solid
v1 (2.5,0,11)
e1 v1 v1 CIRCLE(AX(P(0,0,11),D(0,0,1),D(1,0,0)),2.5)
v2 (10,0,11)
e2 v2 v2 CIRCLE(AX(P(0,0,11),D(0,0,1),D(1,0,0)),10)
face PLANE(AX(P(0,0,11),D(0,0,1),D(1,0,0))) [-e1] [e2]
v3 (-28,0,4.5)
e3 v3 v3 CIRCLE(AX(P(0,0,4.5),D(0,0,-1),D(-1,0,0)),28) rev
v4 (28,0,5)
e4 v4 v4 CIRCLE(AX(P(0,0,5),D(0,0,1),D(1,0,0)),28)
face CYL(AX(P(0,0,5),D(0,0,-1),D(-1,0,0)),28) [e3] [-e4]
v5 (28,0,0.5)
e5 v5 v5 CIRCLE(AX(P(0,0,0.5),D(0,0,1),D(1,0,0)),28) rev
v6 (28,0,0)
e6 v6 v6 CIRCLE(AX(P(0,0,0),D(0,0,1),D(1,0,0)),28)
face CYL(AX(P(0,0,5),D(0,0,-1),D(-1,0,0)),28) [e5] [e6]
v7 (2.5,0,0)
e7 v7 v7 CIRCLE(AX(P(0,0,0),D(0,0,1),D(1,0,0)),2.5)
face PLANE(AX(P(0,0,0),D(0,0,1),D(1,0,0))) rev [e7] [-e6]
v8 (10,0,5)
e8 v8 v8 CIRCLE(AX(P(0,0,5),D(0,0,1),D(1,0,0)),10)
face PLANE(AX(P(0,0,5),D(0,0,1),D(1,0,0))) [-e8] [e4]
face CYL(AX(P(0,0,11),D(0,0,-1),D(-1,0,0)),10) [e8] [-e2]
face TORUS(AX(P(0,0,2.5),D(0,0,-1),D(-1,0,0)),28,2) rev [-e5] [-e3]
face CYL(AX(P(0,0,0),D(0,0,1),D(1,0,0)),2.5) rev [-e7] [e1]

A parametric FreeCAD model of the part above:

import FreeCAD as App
import Part
import Sketcher

V = App.Vector
Q = App.Units.Quantity

doc = App.newDocument("Part")
body = doc.addObject("PartDesign::Body", "Body")

sketch1 = body.newObject("Sketcher::SketchObject", "Sketch")
sketch1.AttachmentSupport = (doc.getObject("XY_Plane"), [""])
sketch1.MapMode = "FlatFace"
sketch1.addGeometry(Part.Circle(V(0, 0, 0), V(0, 0, 1), 28), False)
sketch1.addConstraint(Sketcher.Constraint("Coincident", 0, 3, -1, 1))
sketch1.addConstraint(Sketcher.Constraint("Diameter", 0, Q("56 mm")))
pad1 = body.newObject("PartDesign::Pad", "Pad")
pad1.Profile = sketch1
pad1.Length = 5

sketch2 = body.newObject("Sketcher::SketchObject", "Sketch001")
sketch2.AttachmentSupport = (doc.getObject("XY_Plane"), [""])
sketch2.MapMode = "FlatFace"
sketch2.AttachmentOffset = App.Placement(V(0, 0, 5), App.Rotation())
sketch2.addGeometry(Part.Circle(V(0, 0, 0), V(0, 0, 1), 10), False)
sketch2.addConstraint(Sketcher.Constraint("Coincident", 0, 3, -1, 1))
sketch2.addConstraint(Sketcher.Constraint("Diameter", 0, Q("20 mm")))
pad2 = body.newObject("PartDesign::Pad", "Pad001")
pad2.Profile = sketch2
pad2.Length = 6

sketch3 = body.newObject("Sketcher::SketchObject", "Sketch002")
sketch3.AttachmentSupport = (doc.getObject("XY_Plane"), [""])
sketch3.MapMode = "FlatFace"
sketch3.AttachmentOffset = App.Placement(V(0, 0, 11), App.Rotation())
sketch3.addGeometry(Part.Circle(V(0, 0, 0), V(0, 0, 1), 2.5), False)
sketch3.addConstraint(Sketcher.Constraint("Coincident", 0, 3, -1, 1))
sketch3.addConstraint(Sketcher.Constraint("Diameter", 0, Q("5 mm")))
pocket1 = body.newObject("PartDesign::Pocket", "Pocket")
pocket1.Profile = sketch3
pocket1.Type = "ThroughAll"

sketch4 = body.newObject("Sketcher::SketchObject", "Sketch003")
sketch4.AttachmentSupport = (doc.getObject("YZ_Plane"), [""])
sketch4.MapMode = "FlatFace"
sketch4.addGeometry(Part.Circle(V(28, 2.5, 0), V(0, 0, 1), 2), False)
sketch4.addConstraint(Sketcher.Constraint("Diameter", 0, Q("4 mm")))
sketch4.addConstraint(Sketcher.Constraint("DistanceX", -1, 1, 0, 3, Q("28 mm")))
sketch4.addConstraint(Sketcher.Constraint("DistanceY", -1, 1, 0, 3, Q("2.5 mm")))
groove = body.newObject("PartDesign::Groove", "Groove")
groove.Profile = sketch4
groove.ReferenceAxis = (sketch4, ["V_Axis"])
groove.Angle = 360

doc.recompute()
